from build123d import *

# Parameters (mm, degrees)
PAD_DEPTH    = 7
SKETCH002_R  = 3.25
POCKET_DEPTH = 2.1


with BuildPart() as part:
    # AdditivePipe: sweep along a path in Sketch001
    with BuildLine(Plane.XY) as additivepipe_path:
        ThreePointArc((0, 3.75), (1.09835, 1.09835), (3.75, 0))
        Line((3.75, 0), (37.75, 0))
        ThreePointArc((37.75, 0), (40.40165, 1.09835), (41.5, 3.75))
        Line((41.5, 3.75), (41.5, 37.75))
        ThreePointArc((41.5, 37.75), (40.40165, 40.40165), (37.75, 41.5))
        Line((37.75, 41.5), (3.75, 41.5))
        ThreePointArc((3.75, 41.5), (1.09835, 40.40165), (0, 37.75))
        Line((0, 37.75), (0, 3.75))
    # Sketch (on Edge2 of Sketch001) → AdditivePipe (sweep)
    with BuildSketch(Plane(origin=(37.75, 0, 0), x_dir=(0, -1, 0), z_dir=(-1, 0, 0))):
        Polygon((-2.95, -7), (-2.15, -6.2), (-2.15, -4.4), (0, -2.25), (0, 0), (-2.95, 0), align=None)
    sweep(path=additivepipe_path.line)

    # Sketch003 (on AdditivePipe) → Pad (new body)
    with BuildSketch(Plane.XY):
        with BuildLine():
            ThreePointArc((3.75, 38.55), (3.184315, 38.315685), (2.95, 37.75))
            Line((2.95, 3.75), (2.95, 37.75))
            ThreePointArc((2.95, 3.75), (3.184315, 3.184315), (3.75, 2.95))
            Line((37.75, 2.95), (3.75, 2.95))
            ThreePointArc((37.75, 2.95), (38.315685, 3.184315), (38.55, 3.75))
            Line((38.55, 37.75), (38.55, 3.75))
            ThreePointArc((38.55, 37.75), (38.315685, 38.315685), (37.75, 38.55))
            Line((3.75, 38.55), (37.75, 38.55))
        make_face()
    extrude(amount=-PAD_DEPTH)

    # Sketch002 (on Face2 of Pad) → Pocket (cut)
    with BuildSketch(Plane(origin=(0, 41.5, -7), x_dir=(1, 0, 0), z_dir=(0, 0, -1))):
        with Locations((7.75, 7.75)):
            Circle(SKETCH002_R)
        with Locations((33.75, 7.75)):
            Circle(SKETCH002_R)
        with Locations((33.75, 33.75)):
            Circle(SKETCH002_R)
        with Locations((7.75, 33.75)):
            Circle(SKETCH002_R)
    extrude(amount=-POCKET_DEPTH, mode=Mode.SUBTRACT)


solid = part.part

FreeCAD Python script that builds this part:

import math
import FreeCAD as App
import Part
import Sketcher
Q = App.Units.Quantity


def add_polygon(sketch, points):
    """Adds a closed chain of lines whose ends are joined by coincident constraints."""
    first, n = sketch.GeometryCount, len(points)
    for a, b in zip(points, points[1:] + points[:1]):
        sketch.addGeometry(Part.LineSegment(App.Vector(*a, 0), App.Vector(*b, 0)), False)
    for i in range(n):
        sketch.addConstraint(Sketcher.Constraint("Coincident", first + i, 2, first + (i + 1) % n, 1))

doc = App.newDocument("Part")
params = doc.addObject("Spreadsheet::Sheet", "Params")
for row, (alias, value) in enumerate([
    ("sketch1_height", "7 mm"),
    ("sketch1_height2", "1.8 mm"),
    ("sketch1_width", "2.95 mm"),
    ("sketch2_width", "34 mm"),
    ("sketch2_radius", "3.750001 mm"),
    ("sketch3_radius", "0.800001 mm"),
    ("sketch3_width", "34 mm"),
    ("pad1_length", "7 mm"),
    ("sketch4_diameter", "6.5 mm"),
    ("pocket1_length", "2.1 mm"),
], start=1):
    params.set(f"A{row}", alias)
    params.set(f"B{row}", "=" + value)
    params.setAlias(f"B{row}", alias)

body = doc.addObject("PartDesign::Body", "Body")

# Sketch on YZ plane
sketch1 = body.newObject("Sketcher::SketchObject", "Sketch")
sketch1.AttachmentSupport = (doc.getObject("YZ_Plane"), [""])
sketch1.MapMode = "FlatFace"
sketch1.AttachmentOffset = App.Placement(App.Vector(0, 0, 37.75), App.Rotation())
add_polygon(sketch1, [(3, -7), (2.1, -6.2), (2.1, -4.4), (0, -2.2), (0, 0), (3, 0)])  # lines 0-5
sketch1.addConstraint([
    Sketcher.Constraint("Vertical", 1),
    Sketcher.Constraint("Vertical", 3),
    Sketcher.Constraint("Horizontal", 4),
    Sketcher.Constraint("Vertical", 5),
    Sketcher.Constraint("Coincident", 3, 2, -1, 1),
    Sketcher.Constraint("Parallel", 0, 2),
    Sketcher.Constraint("DistanceY", 5, 2, 5, 1, Q("7 mm")),
    Sketcher.Constraint("Angle", 0, Q("135 deg")),
    Sketcher.Constraint("DistanceY", 1, 1, 1, 2, Q("1.8 mm")),
    Sketcher.Constraint("DistanceX", 4, 1, 4, 2, Q("2.95 mm")),
    Sketcher.Constraint("DistanceY", 0, 2, -1, 1, Q("6.2 mm")),
])
sketch1.setExpression("Constraints[12]", "Params.sketch1_height")
sketch1.setExpression("Constraints[14]", "Params.sketch1_height2")
sketch1.setExpression("Constraints[15]", "Params.sketch1_width")

# Sketch on XY plane
sketch2 = body.newObject("Sketcher::SketchObject", "Sketch001")
sketch2.AttachmentSupport = (doc.getObject("XY_Plane"), [""])
sketch2.MapMode = "FlatFace"
sketch2.addGeometry([
    Part.ArcOfCircle(Part.Circle(App.Vector(3.8, 3.8, 0), App.Vector(0, 0, 1), 3.8), math.radians(-180), math.radians(-90)),  # 0
    Part.LineSegment(App.Vector(3.8, 0, 0), App.Vector(37.8, 0, 0)),  # 1
    Part.ArcOfCircle(Part.Circle(App.Vector(37.7, 3.8, 0), App.Vector(0, 0, 1), 3.8), math.radians(-90), math.radians(0)),  # 2
    Part.LineSegment(App.Vector(41.5, 3.8, 0), App.Vector(41.5, 37.8, 0)),  # 3
    Part.ArcOfCircle(Part.Circle(App.Vector(37.7, 37.7, 0), App.Vector(0, 0, 1), 3.8), math.radians(0), math.radians(90)),  # 4
    Part.LineSegment(App.Vector(37.8, 41.5, 0), App.Vector(3.8, 41.5, 0)),  # 5
    Part.ArcOfCircle(Part.Circle(App.Vector(3.8, 37.7, 0), App.Vector(0, 0, 1), 3.8), math.radians(90), math.radians(180)),  # 6
    Part.LineSegment(App.Vector(0, 37.8, 0), App.Vector(0, 3.8, 0)),  # 7
], False)
sketch2.addConstraint([
    Sketcher.Constraint("Tangent", 0, 2, 1, 1),
    Sketcher.Constraint("Tangent", 1, 2, 2, 1),
    Sketcher.Constraint("Tangent", 2, 2, 3, 1),
    Sketcher.Constraint("Tangent", 3, 2, 4, 1),
    Sketcher.Constraint("Tangent", 4, 2, 5, 1),
    Sketcher.Constraint("Tangent", 5, 2, 6, 1),
    Sketcher.Constraint("Tangent", 6, 2, 7, 1),
    Sketcher.Constraint("Tangent", 7, 2, 0, 1),
    Sketcher.Constraint("Horizontal", 1),
    Sketcher.Constraint("Vertical", 3),
    Sketcher.Constraint("Horizontal", 5),
    Sketcher.Constraint("Vertical", 7),
    Sketcher.Constraint("Equal", 0, 2),
    Sketcher.Constraint("Equal", 2, 4),
    Sketcher.Constraint("Equal", 4, 6),
    Sketcher.Constraint("PointOnObject", 0, 2, -1),
    Sketcher.Constraint("PointOnObject", 6, 2, -2),
    Sketcher.Constraint("Equal", 5, 3),
    Sketcher.Constraint("DistanceX", 1, 1, 1, 2, Q("34 mm")),
    Sketcher.Constraint("Radius", 0, Q("3.750001 mm")),
])
sketch2.setExpression("Constraints[18]", "Params.sketch2_width")
sketch2.setExpression("Constraints[19]", "Params.sketch2_radius")
doc.recompute()

additivepipe = body.newObject("PartDesign::AdditivePipe", "AdditivePipe")
additivepipe.Profile = sketch1
additivepipe.Spine = (sketch2, ["Edge1", "Edge2", "Edge3", "Edge4", "Edge5", "Edge6", "Edge7", "Edge8"])

# Sketch on XY plane
sketch3 = body.newObject("Sketcher::SketchObject", "Sketch002")
sketch3.AttachmentSupport = (doc.getObject("XY_Plane"), [""])
sketch3.MapMode = "FlatFace"
sketch3.addGeometry([
    Part.ArcOfCircle(Part.Circle(App.Vector(3.8, 37.7, 0), App.Vector(0, 0, 1), 0.8), math.radians(90), math.radians(180)),  # 0
    Part.LineSegment(App.Vector(3, 37.8, 0), App.Vector(3, 3.8, 0)),  # 1
    Part.ArcOfCircle(Part.Circle(App.Vector(3.8, 3.8, 0), App.Vector(0, 0, 1), 0.8), math.radians(-180), math.radians(-90)),  # 2
    Part.LineSegment(App.Vector(3.8, 3, 0), App.Vector(37.8, 3, 0)),  # 3
    Part.ArcOfCircle(Part.Circle(App.Vector(37.7, 3.8, 0), App.Vector(0, 0, 1), 0.8), math.radians(-90), math.radians(0)),  # 4
    Part.LineSegment(App.Vector(38.5, 3.8, 0), App.Vector(38.5, 37.8, 0)),  # 5
    Part.ArcOfCircle(Part.Circle(App.Vector(37.7, 37.7, 0), App.Vector(0, 0, 1), 0.8), math.radians(0), math.radians(90)),  # 6
    Part.LineSegment(App.Vector(37.8, 38.5, 0), App.Vector(3.8, 38.5, 0)),  # 7
], False)
sketch3.addConstraint([
    Sketcher.Constraint("Tangent", 0, 2, 1, 1),
    Sketcher.Constraint("Tangent", 1, 2, 2, 1),
    Sketcher.Constraint("Tangent", 2, 2, 3, 1),
    Sketcher.Constraint("Tangent", 3, 2, 4, 1),
    Sketcher.Constraint("Tangent", 4, 2, 5, 1),
    Sketcher.Constraint("Tangent", 5, 2, 6, 1),
    Sketcher.Constraint("Tangent", 6, 2, 7, 1),
    Sketcher.Constraint("Tangent", 7, 2, 0, 1),
    Sketcher.Constraint("Vertical", 1),
    Sketcher.Constraint("Horizontal", 3),
    Sketcher.Constraint("Vertical", 5),
    Sketcher.Constraint("Horizontal", 7),
    Sketcher.Constraint("Equal", 0, 2),
    Sketcher.Constraint("Equal", 2, 4),
    Sketcher.Constraint("Equal", 4, 6),
    Sketcher.Constraint("Equal", 7, 1),
    Sketcher.Constraint("Radius", 0, Q("0.800001 mm")),
    Sketcher.Constraint("DistanceX", 3, 1, 3, 2, Q("34 mm")),
    Sketcher.Constraint("DistanceX", -1, 1, 0, 3, Q("3.750001 mm")),
    Sketcher.Constraint("DistanceY", -1, 1, 0, 3, Q("37.749999 mm")),
])
sketch3.setExpression("Constraints[16]", "Params.sketch3_radius")
sketch3.setExpression("Constraints[17]", "Params.sketch3_width")
pad1 = body.newObject("PartDesign::Pad", "Pad")
pad1.Profile = sketch3
pad1.setExpression("Length", "Params.pad1_length")
pad1.Reversed = True

# Sketch on XY plane
sketch4 = body.newObject("Sketcher::SketchObject", "Sketch003")
sketch4.AttachmentSupport = (doc.getObject("XY_Plane"), [""])
sketch4.MapMode = "FlatFace"
sketch4.AttachmentOffset = App.Placement(App.Vector(0, 0, -7), App.Rotation())
sketch4.addGeometry([
    Part.Circle(App.Vector(7.8, 33.8, 0), App.Vector(0, 0, 1), 3.2),
    Part.Circle(App.Vector(33.8, 33.8, 0), App.Vector(0, 0, 1), 3.2),
    Part.Circle(App.Vector(33.8, 7.8, 0), App.Vector(0, 0, 1), 3.2),
    Part.Circle(App.Vector(7.8, 7.8, 0), App.Vector(0, 0, 1), 3.2),
], False)
sketch4.addConstraint([
    Sketcher.Constraint("Equal", 0, 1),
    Sketcher.Constraint("Equal", 1, 2),
    Sketcher.Constraint("Equal", 2, 3),
    Sketcher.Constraint("Horizontal", 0, 3, 1, 3),
    Sketcher.Constraint("Horizontal", 2, 3, 3, 3),
    Sketcher.Constraint("Vertical", 1, 3, 2, 3),
    Sketcher.Constraint("Vertical", 0, 3, 3, 3),
    Sketcher.Constraint("Diameter", 0, Q("6.5 mm")),
    Sketcher.Constraint("DistanceX", 0, 3, 1, 3, Q("26 mm")),
    Sketcher.Constraint("DistanceY", 2, 3, 1, 3, Q("26 mm")),
    Sketcher.Constraint("DistanceX", -1, 1, 0, 3, Q("7.75 mm")),
    Sketcher.Constraint("DistanceY", -1, 1, 0, 3, Q("33.75 mm")),
])
sketch4.setExpression("Constraints[7]", "Params.sketch4_diameter")
pocket1 = body.newObject("PartDesign::Pocket", "Pocket")
pocket1.Profile = sketch4
pocket1.setExpression("Length", "Params.pocket1_length")
pocket1.Reversed = True

doc.recompute()
